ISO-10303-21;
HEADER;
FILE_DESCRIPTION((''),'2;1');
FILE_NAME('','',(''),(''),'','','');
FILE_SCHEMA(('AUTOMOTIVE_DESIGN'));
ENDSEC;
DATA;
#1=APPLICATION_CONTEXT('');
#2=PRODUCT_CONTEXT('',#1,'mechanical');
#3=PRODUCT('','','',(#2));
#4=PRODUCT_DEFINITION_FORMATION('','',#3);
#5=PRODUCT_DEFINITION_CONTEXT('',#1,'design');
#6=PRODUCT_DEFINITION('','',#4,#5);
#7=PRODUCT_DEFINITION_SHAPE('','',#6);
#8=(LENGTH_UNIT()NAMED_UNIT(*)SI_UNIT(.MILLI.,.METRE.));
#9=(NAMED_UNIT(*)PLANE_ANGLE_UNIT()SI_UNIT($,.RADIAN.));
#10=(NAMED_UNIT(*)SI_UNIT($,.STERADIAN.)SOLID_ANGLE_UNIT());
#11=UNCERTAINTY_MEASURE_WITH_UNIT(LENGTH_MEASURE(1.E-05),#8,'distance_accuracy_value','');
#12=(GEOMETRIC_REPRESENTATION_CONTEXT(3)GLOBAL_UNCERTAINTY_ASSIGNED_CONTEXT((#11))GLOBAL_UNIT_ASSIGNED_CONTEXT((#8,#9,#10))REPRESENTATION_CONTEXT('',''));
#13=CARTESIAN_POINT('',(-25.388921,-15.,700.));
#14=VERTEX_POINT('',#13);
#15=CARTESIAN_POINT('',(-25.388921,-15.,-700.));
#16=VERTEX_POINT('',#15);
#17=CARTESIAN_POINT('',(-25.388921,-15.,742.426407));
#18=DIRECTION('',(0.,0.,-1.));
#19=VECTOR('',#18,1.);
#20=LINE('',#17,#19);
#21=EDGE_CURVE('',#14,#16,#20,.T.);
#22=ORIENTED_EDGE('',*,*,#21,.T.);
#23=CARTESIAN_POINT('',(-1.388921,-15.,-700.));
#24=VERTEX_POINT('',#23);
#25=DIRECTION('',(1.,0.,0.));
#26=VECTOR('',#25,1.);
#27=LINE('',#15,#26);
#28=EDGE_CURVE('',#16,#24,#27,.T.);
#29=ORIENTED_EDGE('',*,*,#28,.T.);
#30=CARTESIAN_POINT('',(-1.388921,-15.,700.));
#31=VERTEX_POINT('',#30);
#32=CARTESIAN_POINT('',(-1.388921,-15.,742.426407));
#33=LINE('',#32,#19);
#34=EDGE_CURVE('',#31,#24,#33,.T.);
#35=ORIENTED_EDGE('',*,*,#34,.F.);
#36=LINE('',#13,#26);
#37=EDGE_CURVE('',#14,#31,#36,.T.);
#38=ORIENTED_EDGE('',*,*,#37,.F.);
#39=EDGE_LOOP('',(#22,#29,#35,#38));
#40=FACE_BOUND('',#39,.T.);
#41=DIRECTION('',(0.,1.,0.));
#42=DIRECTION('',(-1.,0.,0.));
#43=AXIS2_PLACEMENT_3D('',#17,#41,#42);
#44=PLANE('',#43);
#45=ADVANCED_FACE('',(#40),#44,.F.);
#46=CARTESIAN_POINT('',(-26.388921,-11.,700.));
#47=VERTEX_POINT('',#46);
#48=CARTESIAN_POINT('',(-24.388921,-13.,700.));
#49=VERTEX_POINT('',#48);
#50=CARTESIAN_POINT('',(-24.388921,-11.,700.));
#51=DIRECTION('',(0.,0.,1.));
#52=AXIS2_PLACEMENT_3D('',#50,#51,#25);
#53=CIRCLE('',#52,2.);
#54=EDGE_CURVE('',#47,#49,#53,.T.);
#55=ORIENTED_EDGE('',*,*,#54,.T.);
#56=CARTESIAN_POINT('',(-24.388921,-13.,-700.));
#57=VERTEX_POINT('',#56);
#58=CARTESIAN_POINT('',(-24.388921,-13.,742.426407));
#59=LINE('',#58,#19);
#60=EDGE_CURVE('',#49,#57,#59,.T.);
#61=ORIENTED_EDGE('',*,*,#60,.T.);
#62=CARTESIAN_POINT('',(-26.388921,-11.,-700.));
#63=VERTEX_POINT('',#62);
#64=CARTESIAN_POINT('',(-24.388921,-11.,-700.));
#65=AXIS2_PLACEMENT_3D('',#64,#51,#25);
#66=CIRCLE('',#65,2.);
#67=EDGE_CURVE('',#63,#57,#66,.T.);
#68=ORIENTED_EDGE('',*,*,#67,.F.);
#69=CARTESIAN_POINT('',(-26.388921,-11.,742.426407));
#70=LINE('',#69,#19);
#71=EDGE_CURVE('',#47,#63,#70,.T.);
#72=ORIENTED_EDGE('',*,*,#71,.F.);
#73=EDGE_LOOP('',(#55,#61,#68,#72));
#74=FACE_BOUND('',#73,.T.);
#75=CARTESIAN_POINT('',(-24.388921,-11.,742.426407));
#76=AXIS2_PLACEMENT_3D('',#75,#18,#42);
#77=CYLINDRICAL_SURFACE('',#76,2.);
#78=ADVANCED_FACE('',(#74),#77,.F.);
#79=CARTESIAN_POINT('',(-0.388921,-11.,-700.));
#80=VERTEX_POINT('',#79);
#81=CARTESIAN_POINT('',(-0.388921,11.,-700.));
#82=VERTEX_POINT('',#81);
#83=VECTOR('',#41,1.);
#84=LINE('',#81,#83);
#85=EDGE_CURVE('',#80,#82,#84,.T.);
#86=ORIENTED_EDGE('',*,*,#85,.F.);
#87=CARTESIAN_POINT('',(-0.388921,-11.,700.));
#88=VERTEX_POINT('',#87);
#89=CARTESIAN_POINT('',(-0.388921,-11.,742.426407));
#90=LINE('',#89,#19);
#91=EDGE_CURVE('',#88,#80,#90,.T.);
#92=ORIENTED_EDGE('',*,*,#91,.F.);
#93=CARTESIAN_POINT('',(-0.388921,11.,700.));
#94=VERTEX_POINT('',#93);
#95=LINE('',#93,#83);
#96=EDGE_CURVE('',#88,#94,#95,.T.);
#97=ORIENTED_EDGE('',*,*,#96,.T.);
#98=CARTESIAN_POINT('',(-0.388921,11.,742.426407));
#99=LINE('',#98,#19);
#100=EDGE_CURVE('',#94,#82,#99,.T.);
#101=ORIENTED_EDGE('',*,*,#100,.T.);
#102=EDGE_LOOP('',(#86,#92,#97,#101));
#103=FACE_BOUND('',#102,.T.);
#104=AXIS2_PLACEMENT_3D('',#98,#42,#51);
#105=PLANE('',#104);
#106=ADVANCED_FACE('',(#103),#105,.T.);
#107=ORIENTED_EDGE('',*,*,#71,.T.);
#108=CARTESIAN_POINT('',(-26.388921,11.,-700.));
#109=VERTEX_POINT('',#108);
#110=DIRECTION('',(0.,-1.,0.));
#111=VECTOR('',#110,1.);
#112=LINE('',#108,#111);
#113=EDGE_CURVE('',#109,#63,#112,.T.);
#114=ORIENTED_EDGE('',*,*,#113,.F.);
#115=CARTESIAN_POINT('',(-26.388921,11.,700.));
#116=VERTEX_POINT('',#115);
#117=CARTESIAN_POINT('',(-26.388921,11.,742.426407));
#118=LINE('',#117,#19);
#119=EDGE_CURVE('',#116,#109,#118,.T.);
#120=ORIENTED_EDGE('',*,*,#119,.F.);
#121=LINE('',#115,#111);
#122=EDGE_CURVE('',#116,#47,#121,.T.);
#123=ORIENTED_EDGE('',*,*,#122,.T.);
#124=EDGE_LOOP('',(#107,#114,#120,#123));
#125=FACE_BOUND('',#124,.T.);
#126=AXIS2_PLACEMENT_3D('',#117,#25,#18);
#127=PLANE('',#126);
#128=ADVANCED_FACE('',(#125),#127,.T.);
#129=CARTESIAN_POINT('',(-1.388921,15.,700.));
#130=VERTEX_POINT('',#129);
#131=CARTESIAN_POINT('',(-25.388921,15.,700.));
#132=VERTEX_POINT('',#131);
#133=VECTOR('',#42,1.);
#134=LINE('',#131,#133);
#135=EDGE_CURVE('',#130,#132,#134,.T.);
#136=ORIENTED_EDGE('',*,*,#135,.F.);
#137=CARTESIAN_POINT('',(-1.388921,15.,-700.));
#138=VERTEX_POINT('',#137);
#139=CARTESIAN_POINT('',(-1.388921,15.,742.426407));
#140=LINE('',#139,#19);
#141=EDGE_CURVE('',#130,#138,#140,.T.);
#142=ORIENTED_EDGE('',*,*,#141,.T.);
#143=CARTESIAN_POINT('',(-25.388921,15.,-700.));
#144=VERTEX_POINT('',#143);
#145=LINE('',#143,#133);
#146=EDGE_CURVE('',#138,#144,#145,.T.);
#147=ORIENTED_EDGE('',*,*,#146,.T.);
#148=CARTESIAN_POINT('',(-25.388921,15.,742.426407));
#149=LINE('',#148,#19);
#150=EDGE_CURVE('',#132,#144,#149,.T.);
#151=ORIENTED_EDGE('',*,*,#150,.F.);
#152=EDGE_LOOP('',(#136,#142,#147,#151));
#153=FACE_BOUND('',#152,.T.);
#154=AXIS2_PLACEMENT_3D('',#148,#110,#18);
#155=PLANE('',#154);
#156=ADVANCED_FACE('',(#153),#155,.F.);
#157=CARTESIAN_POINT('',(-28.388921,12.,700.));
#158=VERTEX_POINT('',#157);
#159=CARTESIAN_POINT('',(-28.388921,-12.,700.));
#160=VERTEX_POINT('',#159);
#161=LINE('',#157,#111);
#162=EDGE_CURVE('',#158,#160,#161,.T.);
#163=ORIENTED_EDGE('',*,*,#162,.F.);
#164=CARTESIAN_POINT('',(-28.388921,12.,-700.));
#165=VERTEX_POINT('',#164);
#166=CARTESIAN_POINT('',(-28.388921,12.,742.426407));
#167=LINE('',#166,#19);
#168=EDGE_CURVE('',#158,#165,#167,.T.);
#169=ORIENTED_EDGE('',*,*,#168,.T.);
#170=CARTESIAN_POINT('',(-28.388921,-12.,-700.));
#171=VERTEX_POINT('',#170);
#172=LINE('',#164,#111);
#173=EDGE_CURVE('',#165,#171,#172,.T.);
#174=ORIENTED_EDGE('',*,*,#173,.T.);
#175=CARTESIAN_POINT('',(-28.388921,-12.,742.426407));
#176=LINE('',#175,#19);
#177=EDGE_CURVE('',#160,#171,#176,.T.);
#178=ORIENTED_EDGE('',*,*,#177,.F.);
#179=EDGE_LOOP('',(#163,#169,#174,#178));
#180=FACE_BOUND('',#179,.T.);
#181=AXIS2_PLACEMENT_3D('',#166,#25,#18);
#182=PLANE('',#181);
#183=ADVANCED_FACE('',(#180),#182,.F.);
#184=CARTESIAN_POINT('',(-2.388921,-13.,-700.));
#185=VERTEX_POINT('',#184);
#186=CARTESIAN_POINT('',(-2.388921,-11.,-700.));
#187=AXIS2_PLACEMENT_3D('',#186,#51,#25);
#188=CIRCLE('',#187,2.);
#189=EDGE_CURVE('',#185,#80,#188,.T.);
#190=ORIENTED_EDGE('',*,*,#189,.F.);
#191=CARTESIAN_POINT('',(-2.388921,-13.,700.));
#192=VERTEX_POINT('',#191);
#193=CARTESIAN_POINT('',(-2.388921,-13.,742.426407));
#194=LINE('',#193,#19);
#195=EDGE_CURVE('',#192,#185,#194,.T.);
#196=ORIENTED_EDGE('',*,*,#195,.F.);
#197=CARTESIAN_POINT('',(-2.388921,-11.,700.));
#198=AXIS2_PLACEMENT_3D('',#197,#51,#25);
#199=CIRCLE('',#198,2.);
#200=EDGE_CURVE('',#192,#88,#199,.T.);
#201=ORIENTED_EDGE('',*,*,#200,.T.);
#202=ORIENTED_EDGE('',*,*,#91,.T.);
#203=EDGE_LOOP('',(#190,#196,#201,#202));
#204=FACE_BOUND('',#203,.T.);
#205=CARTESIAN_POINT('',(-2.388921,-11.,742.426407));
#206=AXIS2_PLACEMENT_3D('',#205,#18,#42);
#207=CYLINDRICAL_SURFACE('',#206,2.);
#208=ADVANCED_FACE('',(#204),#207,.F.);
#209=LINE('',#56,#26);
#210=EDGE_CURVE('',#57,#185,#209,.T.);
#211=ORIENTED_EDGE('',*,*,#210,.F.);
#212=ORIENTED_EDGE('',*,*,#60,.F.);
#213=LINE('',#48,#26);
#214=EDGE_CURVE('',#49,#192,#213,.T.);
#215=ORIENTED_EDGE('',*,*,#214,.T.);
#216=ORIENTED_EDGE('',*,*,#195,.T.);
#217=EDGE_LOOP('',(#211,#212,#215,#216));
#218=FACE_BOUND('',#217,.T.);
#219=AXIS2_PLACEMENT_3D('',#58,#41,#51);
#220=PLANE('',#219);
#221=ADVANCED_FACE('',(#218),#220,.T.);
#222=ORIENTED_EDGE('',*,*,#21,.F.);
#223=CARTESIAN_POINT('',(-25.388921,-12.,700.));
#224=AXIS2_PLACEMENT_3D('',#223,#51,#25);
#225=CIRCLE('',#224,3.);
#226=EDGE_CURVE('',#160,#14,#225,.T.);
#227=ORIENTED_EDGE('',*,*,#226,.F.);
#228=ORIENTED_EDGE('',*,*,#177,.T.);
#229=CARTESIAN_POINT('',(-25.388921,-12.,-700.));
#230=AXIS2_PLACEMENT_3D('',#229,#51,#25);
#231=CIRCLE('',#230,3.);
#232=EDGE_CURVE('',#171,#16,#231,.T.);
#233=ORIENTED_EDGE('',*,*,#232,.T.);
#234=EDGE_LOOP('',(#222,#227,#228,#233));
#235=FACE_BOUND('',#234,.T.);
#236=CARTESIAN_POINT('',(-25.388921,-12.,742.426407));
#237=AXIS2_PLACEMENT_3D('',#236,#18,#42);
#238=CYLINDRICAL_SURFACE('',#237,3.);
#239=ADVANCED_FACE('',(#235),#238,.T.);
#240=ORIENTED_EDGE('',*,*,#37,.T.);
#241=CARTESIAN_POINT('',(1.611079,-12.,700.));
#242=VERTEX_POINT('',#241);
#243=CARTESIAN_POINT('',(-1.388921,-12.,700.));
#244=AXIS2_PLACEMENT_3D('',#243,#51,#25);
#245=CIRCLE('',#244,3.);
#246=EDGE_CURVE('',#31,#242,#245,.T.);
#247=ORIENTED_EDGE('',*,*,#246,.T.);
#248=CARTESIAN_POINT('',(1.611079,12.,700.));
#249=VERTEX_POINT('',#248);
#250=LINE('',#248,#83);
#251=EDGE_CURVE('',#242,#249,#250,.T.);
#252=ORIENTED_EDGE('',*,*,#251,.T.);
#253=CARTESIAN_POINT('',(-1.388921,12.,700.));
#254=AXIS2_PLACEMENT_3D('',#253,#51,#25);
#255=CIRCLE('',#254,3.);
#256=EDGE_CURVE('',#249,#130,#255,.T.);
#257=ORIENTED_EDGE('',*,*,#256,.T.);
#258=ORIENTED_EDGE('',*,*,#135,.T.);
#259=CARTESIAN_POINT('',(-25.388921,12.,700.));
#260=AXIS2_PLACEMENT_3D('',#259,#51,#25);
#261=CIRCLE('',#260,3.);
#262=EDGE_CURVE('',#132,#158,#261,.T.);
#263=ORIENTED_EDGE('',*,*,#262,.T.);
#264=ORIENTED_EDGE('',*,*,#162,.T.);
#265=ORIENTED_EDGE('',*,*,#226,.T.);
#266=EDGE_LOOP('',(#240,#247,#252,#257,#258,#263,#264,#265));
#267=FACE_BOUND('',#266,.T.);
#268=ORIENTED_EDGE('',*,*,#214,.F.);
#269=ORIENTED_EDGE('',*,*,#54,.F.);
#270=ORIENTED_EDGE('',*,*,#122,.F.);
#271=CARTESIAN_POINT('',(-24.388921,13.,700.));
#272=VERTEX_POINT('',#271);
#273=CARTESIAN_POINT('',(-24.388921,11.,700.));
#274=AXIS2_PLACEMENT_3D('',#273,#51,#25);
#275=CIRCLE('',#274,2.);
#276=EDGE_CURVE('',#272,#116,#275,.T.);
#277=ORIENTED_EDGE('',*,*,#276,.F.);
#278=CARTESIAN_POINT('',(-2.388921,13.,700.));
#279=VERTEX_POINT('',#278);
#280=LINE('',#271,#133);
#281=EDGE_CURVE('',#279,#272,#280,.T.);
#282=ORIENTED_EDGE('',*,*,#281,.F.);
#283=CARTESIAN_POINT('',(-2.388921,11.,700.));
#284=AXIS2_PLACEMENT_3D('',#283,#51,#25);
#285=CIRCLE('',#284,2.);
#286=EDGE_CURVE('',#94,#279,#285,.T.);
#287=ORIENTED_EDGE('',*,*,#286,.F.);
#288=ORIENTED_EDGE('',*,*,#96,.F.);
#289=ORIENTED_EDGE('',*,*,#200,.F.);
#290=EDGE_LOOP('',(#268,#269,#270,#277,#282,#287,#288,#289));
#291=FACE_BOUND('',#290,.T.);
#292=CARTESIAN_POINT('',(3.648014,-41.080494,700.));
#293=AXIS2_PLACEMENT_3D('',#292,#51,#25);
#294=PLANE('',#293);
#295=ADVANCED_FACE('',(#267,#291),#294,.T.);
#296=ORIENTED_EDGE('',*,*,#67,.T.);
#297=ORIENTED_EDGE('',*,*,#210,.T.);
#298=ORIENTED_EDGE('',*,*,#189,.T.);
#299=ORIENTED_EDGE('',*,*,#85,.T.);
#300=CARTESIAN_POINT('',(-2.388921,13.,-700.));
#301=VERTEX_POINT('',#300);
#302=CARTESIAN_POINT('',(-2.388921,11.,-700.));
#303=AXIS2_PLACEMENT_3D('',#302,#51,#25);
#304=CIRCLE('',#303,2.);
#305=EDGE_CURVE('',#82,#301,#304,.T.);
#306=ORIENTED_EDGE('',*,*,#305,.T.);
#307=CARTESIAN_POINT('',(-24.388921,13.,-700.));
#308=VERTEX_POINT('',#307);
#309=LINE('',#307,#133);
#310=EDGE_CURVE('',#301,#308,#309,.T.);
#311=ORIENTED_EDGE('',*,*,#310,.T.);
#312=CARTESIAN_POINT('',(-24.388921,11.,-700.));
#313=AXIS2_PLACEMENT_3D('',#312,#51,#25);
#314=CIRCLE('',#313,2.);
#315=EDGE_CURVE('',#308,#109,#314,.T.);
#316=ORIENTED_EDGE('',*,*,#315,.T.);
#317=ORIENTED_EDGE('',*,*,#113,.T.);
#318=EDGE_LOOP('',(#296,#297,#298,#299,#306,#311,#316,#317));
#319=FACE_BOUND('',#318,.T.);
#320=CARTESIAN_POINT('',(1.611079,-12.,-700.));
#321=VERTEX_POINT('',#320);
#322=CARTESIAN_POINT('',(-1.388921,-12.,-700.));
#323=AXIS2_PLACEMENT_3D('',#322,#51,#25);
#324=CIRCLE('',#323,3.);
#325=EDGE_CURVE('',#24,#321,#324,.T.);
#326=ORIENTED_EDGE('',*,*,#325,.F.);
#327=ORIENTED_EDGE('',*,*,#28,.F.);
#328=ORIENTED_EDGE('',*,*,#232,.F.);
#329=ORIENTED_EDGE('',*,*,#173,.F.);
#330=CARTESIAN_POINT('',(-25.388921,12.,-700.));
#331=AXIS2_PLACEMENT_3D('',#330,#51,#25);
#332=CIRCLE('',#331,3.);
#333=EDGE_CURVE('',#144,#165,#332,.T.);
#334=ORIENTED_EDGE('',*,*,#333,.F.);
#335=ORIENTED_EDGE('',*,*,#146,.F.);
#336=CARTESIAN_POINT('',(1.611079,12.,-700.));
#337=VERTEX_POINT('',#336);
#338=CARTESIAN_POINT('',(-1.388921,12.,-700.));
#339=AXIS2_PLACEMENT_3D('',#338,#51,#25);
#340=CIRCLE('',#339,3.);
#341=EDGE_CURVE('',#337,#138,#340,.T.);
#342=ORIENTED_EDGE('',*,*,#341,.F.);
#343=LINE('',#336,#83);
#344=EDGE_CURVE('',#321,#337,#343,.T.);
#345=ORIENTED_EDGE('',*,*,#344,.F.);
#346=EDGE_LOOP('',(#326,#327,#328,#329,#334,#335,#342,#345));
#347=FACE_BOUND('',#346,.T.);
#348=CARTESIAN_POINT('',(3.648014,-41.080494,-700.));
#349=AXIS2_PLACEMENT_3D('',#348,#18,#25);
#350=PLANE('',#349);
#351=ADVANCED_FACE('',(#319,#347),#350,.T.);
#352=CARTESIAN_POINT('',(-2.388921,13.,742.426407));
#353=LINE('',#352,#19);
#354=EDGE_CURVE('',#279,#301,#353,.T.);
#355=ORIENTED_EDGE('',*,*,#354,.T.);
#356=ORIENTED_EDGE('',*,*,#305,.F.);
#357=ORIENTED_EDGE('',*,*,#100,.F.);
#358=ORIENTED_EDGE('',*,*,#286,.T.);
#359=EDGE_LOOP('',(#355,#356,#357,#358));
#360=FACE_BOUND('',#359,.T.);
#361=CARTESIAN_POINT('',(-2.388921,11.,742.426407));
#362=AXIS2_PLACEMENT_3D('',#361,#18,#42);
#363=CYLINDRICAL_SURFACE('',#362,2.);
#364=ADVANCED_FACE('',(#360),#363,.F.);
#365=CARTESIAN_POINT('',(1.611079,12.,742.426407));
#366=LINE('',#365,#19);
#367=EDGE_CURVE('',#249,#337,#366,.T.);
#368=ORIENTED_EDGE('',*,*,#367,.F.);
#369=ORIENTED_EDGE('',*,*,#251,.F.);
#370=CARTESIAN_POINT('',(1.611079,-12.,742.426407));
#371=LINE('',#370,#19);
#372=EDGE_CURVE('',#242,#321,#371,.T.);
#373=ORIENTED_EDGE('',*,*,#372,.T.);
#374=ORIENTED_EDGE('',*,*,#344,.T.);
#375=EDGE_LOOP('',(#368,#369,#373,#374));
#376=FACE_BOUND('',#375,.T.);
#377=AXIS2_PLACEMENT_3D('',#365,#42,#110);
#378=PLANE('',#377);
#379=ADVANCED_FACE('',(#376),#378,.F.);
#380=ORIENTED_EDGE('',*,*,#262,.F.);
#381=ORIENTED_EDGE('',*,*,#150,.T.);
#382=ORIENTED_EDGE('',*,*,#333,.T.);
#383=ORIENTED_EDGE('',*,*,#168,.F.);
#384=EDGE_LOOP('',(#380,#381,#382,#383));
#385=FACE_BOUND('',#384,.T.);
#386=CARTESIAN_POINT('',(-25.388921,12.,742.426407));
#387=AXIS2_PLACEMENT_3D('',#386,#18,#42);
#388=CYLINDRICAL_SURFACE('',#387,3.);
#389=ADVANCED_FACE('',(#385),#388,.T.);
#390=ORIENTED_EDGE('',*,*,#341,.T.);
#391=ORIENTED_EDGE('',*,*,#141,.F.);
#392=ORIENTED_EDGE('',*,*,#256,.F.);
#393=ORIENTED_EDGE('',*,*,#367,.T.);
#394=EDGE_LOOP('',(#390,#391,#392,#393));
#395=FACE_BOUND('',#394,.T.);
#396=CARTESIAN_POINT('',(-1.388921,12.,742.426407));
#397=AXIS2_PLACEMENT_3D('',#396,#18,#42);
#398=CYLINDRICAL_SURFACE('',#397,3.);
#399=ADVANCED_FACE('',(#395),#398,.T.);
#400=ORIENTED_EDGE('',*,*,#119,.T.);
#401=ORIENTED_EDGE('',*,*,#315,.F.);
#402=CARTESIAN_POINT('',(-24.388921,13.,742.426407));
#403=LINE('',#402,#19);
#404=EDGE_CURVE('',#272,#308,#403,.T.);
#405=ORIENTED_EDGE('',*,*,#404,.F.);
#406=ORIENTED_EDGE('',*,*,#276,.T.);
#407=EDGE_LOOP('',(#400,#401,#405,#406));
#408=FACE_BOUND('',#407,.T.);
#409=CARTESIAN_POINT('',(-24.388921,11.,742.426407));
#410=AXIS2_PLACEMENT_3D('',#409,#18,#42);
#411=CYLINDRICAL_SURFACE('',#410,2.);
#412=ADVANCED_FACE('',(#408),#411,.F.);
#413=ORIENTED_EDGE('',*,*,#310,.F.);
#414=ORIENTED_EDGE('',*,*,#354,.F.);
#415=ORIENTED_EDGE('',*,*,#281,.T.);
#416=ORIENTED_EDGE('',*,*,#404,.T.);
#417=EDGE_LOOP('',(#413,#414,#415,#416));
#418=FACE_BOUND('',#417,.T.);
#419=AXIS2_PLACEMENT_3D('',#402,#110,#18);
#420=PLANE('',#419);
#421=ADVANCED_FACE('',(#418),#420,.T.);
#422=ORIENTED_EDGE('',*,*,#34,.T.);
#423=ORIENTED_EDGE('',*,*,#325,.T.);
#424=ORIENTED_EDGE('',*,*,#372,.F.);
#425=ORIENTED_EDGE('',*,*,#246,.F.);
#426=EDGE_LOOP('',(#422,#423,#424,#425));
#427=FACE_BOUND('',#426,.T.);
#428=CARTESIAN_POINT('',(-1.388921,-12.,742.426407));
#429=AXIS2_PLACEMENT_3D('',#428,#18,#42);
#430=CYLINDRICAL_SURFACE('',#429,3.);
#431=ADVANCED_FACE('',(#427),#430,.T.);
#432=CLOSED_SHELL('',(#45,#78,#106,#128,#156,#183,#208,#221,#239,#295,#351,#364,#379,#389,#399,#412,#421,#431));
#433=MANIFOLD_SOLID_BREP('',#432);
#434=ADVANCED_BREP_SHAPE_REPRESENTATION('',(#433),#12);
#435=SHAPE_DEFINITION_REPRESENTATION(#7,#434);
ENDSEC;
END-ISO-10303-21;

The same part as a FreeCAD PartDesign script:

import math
import FreeCAD as App
import Part
import Sketcher

V = App.Vector
Q = App.Units.Quantity

doc = App.newDocument("Part")
params = doc.addObject("Spreadsheet::Sheet", "Params")
for row, (alias, value) in enumerate([
    ("sketch1_radius", "3 mm"),
    ("sketch1_radius2", "2 mm"),
    ("sketch1_width", "24 mm"),
    ("sketch1_width2", "22 mm"),
    ("pad1_length", "700 mm"),
], start=1):
    params.set(f"A{row}", alias)
    params.set(f"B{row}", "=" + value)
    params.setAlias(f"B{row}", alias)

body = doc.addObject("PartDesign::Body", "Body")

sketch1 = body.newObject("Sketcher::SketchObject", "Sketch")
sketch1.AttachmentSupport = (doc.getObject("XY_Plane"), [""])
sketch1.MapMode = "FlatFace"
sketch1.addGeometry([
    Part.LineSegment(V(-1.388921, 15, 0), V(-25.388921, 15, 0)),
    Part.ArcOfCircle(Part.Circle(V(-25.388921, 12, 0), V(0, 0, 1), 3), math.radians(90), math.radians(180)),
    Part.LineSegment(V(-28.388921, 12, 0), V(-28.388921, -12, 0)),
    Part.ArcOfCircle(Part.Circle(V(-25.388921, -12, 0), V(0, 0, 1), 3), math.radians(180), math.radians(270)),
    Part.LineSegment(V(-25.388921, -15, 0), V(-1.388921, -15, 0)),
    Part.ArcOfCircle(Part.Circle(V(-1.388921, -12, 0), V(0, 0, 1), 3), math.radians(-90), math.radians(0)),
    Part.LineSegment(V(1.611079, -12, 0), V(1.611079, 12, 0)),
    Part.ArcOfCircle(Part.Circle(V(-1.388921, 12, 0), V(0, 0, 1), 3), math.radians(0), math.radians(90)),
    Part.LineSegment(V(-24.388921, 13, 0), V(-2.388921, 13, 0)),
    Part.ArcOfCircle(Part.Circle(V(-2.388921, 11, 0), V(0, 0, 1), 2), math.radians(0), math.radians(90)),
    Part.LineSegment(V(-0.388921, 11, 0), V(-0.388921, -11, 0)),
    Part.ArcOfCircle(Part.Circle(V(-2.388921, -11, 0), V(0, 0, 1), 2), math.radians(-90), math.radians(0)),
    Part.LineSegment(V(-2.388921, -13, 0), V(-24.388921, -13, 0)),
    Part.ArcOfCircle(Part.Circle(V(-24.388921, -11, 0), V(0, 0, 1), 2), math.radians(-180), math.radians(-90)),
    Part.LineSegment(V(-26.388921, -11, 0), V(-26.388921, 11, 0)),
    Part.ArcOfCircle(Part.Circle(V(-24.388921, 11, 0), V(0, 0, 1), 2), math.radians(90), math.radians(180)),
], False)
sketch1.addConstraint([
    Sketcher.Constraint("Tangent", 0, 2, 1, 1),
    Sketcher.Constraint("Tangent", 1, 2, 2, 1),
    Sketcher.Constraint("Tangent", 2, 2, 3, 1),
    Sketcher.Constraint("Tangent", 3, 2, 4, 1),
    Sketcher.Constraint("Tangent", 4, 2, 5, 1),
    Sketcher.Constraint("Tangent", 5, 2, 6, 1),
    Sketcher.Constraint("Tangent", 6, 2, 7, 1),
    Sketcher.Constraint("Tangent", 7, 2, 0, 1),
    Sketcher.Constraint("Tangent", 8, 2, 9, 2),
    Sketcher.Constraint("Tangent", 9, 1, 10, 1),
    Sketcher.Constraint("Tangent", 10, 2, 11, 2),
    Sketcher.Constraint("Tangent", 11, 1, 12, 1),
    Sketcher.Constraint("Tangent", 12, 2, 13, 2),
    Sketcher.Constraint("Tangent", 13, 1, 14, 1),
    Sketcher.Constraint("Tangent", 14, 2, 15, 2),
    Sketcher.Constraint("Tangent", 15, 1, 8, 1),
    Sketcher.Constraint("Horizontal", 0),
    Sketcher.Constraint("Vertical", 2),
    Sketcher.Constraint("Horizontal", 4),
    Sketcher.Constraint("Vertical", 6),
    Sketcher.Constraint("Horizontal", 8),
    Sketcher.Constraint("Vertical", 10),
    Sketcher.Constraint("Horizontal", 12),
    Sketcher.Constraint("Vertical", 14),
    Sketcher.Constraint("Equal", 1, 3),
    Sketcher.Constraint("Equal", 3, 5),
    Sketcher.Constraint("Equal", 5, 7),
    Sketcher.Constraint("Equal", 9, 11),
    Sketcher.Constraint("Equal", 11, 13),
    Sketcher.Constraint("Equal", 13, 15),
    Sketcher.Constraint("Equal", 4, 2),
    Sketcher.Constraint("Equal", 12, 10),
    Sketcher.Constraint("Radius", 1, Q("3 mm")),
    Sketcher.Constraint("Radius", 9, Q("2 mm")),
    Sketcher.Constraint("DistanceX", 0, 2, 0, 1, Q("24 mm")),
    Sketcher.Constraint("DistanceX", 8, 1, 8, 2, Q("22 mm")),
    Sketcher.Constraint("DistanceY", -1, 1, 1, 3, Q("12 mm")),
    Sketcher.Constraint("DistanceY", -1, 1, 9, 3, Q("11 mm")),
    Sketcher.Constraint("DistanceX", 9, 3, 7, 3, Q("1 mm")),
    Sketcher.Constraint("DistanceX", 1, 3, -1, 1, Q("25.388921 mm")),
])
sketch1.setExpression("Constraints[32]", "Params.sketch1_radius")
sketch1.setExpression("Constraints[33]", "Params.sketch1_radius2")
sketch1.setExpression("Constraints[34]", "Params.sketch1_width")
sketch1.setExpression("Constraints[35]", "Params.sketch1_width2")
pad1 = body.newObject("PartDesign::Pad", "Pad")
pad1.Profile = sketch1
pad1.setExpression("Length", "Params.pad1_length")
body2 = doc.addObject("PartDesign::Body", "Body001")
doc.recompute()

body2.BaseFeature = body
doc.recompute()

mirroring = doc.addObject("Part::Mirroring", "Mirroring")
mirroring.Source = body
mirroring.Base = V(-25.388921, -12, 0)
mirroring.Normal = V(0, 0, 1)
body3 = doc.addObject("PartDesign::Body", "Body002")
body3.BaseFeature = mirroring
boolean = body2.newObject("PartDesign::Boolean", "Boolean")
boolean.Type = "Fuse"
boolean.addObjects([body3])
doc.recompute()
mirroring.Visibility = False

doc.recompute()
